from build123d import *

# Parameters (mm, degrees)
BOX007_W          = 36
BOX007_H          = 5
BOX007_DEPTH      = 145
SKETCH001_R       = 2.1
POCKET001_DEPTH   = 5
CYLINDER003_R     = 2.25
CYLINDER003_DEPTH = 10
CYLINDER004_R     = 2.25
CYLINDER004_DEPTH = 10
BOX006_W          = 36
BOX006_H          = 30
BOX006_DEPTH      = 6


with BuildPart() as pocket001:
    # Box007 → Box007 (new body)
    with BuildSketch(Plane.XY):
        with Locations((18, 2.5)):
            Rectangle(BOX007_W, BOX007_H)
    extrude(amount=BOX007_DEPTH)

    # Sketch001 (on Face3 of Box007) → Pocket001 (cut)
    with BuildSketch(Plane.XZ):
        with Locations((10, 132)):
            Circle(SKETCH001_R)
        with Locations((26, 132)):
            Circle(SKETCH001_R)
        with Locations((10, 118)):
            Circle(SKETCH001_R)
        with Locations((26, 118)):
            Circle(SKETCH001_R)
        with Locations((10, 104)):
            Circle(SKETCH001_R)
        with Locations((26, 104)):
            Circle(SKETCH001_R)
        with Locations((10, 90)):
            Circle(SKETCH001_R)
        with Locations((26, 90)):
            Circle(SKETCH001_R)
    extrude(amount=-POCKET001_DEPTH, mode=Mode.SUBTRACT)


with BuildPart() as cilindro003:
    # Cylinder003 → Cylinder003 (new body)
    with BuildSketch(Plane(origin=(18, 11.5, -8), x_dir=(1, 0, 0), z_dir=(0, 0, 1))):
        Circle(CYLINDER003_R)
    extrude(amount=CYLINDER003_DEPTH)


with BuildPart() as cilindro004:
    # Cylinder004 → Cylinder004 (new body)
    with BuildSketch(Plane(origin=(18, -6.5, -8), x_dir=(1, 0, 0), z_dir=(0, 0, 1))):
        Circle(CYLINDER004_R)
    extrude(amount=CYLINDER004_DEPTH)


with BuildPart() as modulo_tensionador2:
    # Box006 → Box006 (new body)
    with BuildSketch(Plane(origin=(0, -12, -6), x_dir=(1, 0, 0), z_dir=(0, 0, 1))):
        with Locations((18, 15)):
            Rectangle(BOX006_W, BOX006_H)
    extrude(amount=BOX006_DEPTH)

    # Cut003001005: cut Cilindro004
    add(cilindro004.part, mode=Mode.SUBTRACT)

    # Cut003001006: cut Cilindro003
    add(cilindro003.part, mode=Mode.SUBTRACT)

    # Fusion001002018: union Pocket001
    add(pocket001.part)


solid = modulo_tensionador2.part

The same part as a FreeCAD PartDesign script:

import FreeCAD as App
import Part
import Sketcher
Q = App.Units.Quantity

doc = App.newDocument("Part")
body = doc.addObject("PartDesign::Body", "Body")

# Sketch on XY plane
sketch1 = body.newObject("Sketcher::SketchObject", "Sketch")
sketch1.AttachmentSupport = (doc.getObject("XY_Plane"), [""])
sketch1.MapMode = "FlatFace"
sketch1.addGeometry([
    Part.LineSegment(App.Vector(0, 5, 0), App.Vector(0, 0, 0)),
    Part.LineSegment(App.Vector(0, 0, 0), App.Vector(36, 0, 0)),
    Part.LineSegment(App.Vector(36, 0, 0), App.Vector(36, 5, 0)),
    Part.LineSegment(App.Vector(36, 5, 0), App.Vector(0, 5, 0)),
], False)
sketch1.addConstraint([
    Sketcher.Constraint("Coincident", 0, 2, 1, 1),
    Sketcher.Constraint("Coincident", 1, 2, 2, 1),
    Sketcher.Constraint("Coincident", 2, 2, 3, 1),
    Sketcher.Constraint("Coincident", 3, 2, 0, 1),
    Sketcher.Constraint("Vertical", 0),
    Sketcher.Constraint("Horizontal", 1),
    Sketcher.Constraint("Vertical", 2),
    Sketcher.Constraint("Horizontal", 3),
    Sketcher.Constraint("Coincident", 0, 2, -1, 1),
    Sketcher.Constraint("DistanceX", 1, 1, 1, 2, Q("36 mm")),
    Sketcher.Constraint("DistanceY", 0, 2, 0, 1, Q("5 mm")),
])
pad1 = body.newObject("PartDesign::Pad", "Pad")
pad1.Profile = sketch1
pad1.Length = 145

# Sketch on XZ plane
sketch2 = body.newObject("Sketcher::SketchObject", "Sketch001")
sketch2.AttachmentSupport = (doc.getObject("XZ_Plane"), [""])
sketch2.MapMode = "FlatFace"
sketch2.addGeometry([
    Part.Circle(App.Vector(10, 132, 0), App.Vector(0, 0, 1), 2.1),  # 0
    Part.Circle(App.Vector(26, 132, 0), App.Vector(0, 0, 1), 2.1),  # 1
    Part.Circle(App.Vector(10, 118, 0), App.Vector(0, 0, 1), 2.1),  # 2
    Part.Circle(App.Vector(26, 118, 0), App.Vector(0, 0, 1), 2.1),  # 3
    Part.Circle(App.Vector(10, 104, 0), App.Vector(0, 0, 1), 2.1),  # 4
    Part.Circle(App.Vector(26, 104, 0), App.Vector(0, 0, 1), 2.1),  # 5
    Part.Circle(App.Vector(10, 90, 0), App.Vector(0, 0, 1), 2.1),  # 6
    Part.Circle(App.Vector(26, 90, 0), App.Vector(0, 0, 1), 2.1),  # 7
], False)
sketch2.addConstraint([
    Sketcher.Constraint("Equal", 0, 1),
    Sketcher.Constraint("Equal", 1, 2),
    Sketcher.Constraint("Equal", 2, 3),
    Sketcher.Constraint("Equal", 3, 4),
    Sketcher.Constraint("Equal", 4, 5),
    Sketcher.Constraint("Equal", 5, 6),
    Sketcher.Constraint("Equal", 6, 7),
    Sketcher.Constraint("Horizontal", 0, 3, 1, 3),
    Sketcher.Constraint("Horizontal", 2, 3, 3, 3),
    Sketcher.Constraint("Horizontal", 4, 3, 5, 3),
    Sketcher.Constraint("Horizontal", 6, 3, 7, 3),
    Sketcher.Constraint("Vertical", 0, 3, 2, 3),
    Sketcher.Constraint("Vertical", 1, 3, 3, 3),
    Sketcher.Constraint("Vertical", 2, 3, 4, 3),
    Sketcher.Constraint("Vertical", 3, 3, 5, 3),
    Sketcher.Constraint("Vertical", 4, 3, 6, 3),
    Sketcher.Constraint("Vertical", 5, 3, 7, 3),
    Sketcher.Constraint("Diameter", 0, Q("4.2 mm")),
    Sketcher.Constraint("DistanceX", -1, 1, 0, 3, Q("10 mm")),
    Sketcher.Constraint("DistanceY", -1, 1, 0, 3, Q("132 mm")),
    Sketcher.Constraint("DistanceX", -1, 1, 1, 3, Q("26 mm")),
    Sketcher.Constraint("DistanceY", -1, 1, 2, 3, Q("118 mm")),
    Sketcher.Constraint("DistanceY", -1, 1, 4, 3, Q("104 mm")),
    Sketcher.Constraint("DistanceY", -1, 1, 6, 3, Q("90 mm")),
])
pocket1 = body.newObject("PartDesign::Pocket", "Pocket")
pocket1.Profile = sketch2
pocket1.Length = 5
body2 = doc.addObject("PartDesign::Body", "Body001")

# Sketch on XY plane
sketch3 = body2.newObject("Sketcher::SketchObject", "Sketch002")
sketch3.AttachmentSupport = (doc.getObject("XY_Plane001"), [""])
sketch3.MapMode = "FlatFace"
sketch3.AttachmentOffset = App.Placement(App.Vector(0, 0, -8), App.Rotation())
sketch3.addGeometry(Part.Circle(App.Vector(18, 11.5, 0), App.Vector(0, 0, 1), 2.2), False)
sketch3.addConstraint([
    Sketcher.Constraint("Diameter", 0, Q("4.5 mm")),
    Sketcher.Constraint("DistanceX", -1, 1, 0, 3, Q("18 mm")),
    Sketcher.Constraint("DistanceY", -1, 1, 0, 3, Q("11.5 mm")),
])
pad2 = body2.newObject("PartDesign::Pad", "Pad001")
pad2.Profile = sketch3
pad2.Length = 10
body3 = doc.addObject("PartDesign::Body", "Body002")

# Sketch on XY plane
sketch4 = body3.newObject("Sketcher::SketchObject", "Sketch003")
sketch4.AttachmentSupport = (doc.getObject("XY_Plane002"), [""])
sketch4.MapMode = "FlatFace"
sketch4.AttachmentOffset = App.Placement(App.Vector(0, 0, -8), App.Rotation())
sketch4.addGeometry(Part.Circle(App.Vector(18, -6.5, 0), App.Vector(0, 0, 1), 2.2), False)
sketch4.addConstraint([
    Sketcher.Constraint("Diameter", 0, Q("4.5 mm")),
    Sketcher.Constraint("DistanceX", -1, 1, 0, 3, Q("18 mm")),
    Sketcher.Constraint("DistanceY", 0, 3, -1, 1, Q("6.5 mm")),
])
pad3 = body3.newObject("PartDesign::Pad", "Pad002")
pad3.Profile = sketch4
pad3.Length = 10
body4 = doc.addObject("PartDesign::Body", "Body003")

# Sketch on XY plane
sketch5 = body4.newObject("Sketcher::SketchObject", "Sketch004")
sketch5.AttachmentSupport = (doc.getObject("XY_Plane003"), [""])
sketch5.MapMode = "FlatFace"
sketch5.AttachmentOffset = App.Placement(App.Vector(0, 0, -6), App.Rotation())
sketch5.addGeometry([
    Part.LineSegment(App.Vector(0, 18, 0), App.Vector(0, -12, 0)),
    Part.LineSegment(App.Vector(0, -12, 0), App.Vector(36, -12, 0)),
    Part.LineSegment(App.Vector(36, -12, 0), App.Vector(36, 18, 0)),
    Part.LineSegment(App.Vector(36, 18, 0), App.Vector(0, 18, 0)),
], False)
sketch5.addConstraint([
    Sketcher.Constraint("Coincident", 0, 2, 1, 1),
    Sketcher.Constraint("Coincident", 1, 2, 2, 1),
    Sketcher.Constraint("Coincident", 2, 2, 3, 1),
    Sketcher.Constraint("Coincident", 3, 2, 0, 1),
    Sketcher.Constraint("Vertical", 0),
    Sketcher.Constraint("Horizontal", 1),
    Sketcher.Constraint("Vertical", 2),
    Sketcher.Constraint("Horizontal", 3),
    Sketcher.Constraint("PointOnObject", 0, 2, -2),
    Sketcher.Constraint("DistanceX", 1, 1, 1, 2, Q("36 mm")),
    Sketcher.Constraint("DistanceY", 0, 2, 0, 1, Q("30 mm")),
    Sketcher.Constraint("DistanceY", 0, 2, -1, 1, Q("12 mm")),
])
pad4 = body4.newObject("PartDesign::Pad", "Pad003")
pad4.Profile = sketch5
pad4.Length = 6
doc.recompute()

boolean = body4.newObject("PartDesign::Boolean", "Boolean")
boolean.Type = "Cut"
boolean.addObjects([body3])
doc.recompute()

boolean2 = body4.newObject("PartDesign::Boolean", "Boolean001")
boolean2.Type = "Cut"
boolean2.addObjects([body2])
doc.recompute()

boolean3 = body4.newObject("PartDesign::Boolean", "Boolean002")
boolean3.Type = "Fuse"
boolean3.addObjects([body])

doc.recompute()
